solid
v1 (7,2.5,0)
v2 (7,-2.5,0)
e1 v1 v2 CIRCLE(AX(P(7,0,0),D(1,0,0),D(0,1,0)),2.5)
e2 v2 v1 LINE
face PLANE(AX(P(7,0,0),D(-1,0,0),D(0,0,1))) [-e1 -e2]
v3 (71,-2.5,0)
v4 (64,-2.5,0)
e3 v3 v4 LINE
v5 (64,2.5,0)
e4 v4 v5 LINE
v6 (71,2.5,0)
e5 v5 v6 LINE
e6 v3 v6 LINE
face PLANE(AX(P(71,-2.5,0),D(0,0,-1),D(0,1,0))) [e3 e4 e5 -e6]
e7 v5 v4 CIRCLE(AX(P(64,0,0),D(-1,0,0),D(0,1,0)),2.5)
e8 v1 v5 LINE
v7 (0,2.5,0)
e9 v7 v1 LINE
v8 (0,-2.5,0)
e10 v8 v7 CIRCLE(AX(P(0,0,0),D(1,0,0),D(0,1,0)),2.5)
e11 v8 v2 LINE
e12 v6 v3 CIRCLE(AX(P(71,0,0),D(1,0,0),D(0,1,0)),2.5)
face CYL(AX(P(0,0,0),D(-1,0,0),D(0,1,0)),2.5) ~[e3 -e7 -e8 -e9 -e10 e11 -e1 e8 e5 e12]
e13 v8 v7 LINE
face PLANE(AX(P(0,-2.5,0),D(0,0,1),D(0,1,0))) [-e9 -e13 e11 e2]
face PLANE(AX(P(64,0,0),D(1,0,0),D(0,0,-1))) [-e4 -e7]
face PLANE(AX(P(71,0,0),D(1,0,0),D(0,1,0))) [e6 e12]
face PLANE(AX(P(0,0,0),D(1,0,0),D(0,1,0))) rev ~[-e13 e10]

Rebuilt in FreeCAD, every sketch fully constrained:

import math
import FreeCAD as App
import Part
import Sketcher

V = App.Vector
Q = App.Units.Quantity

doc = App.newDocument("Part")
body = doc.addObject("PartDesign::Body", "Body")

# Sketch on YZ plane
sketch1 = body.newObject("Sketcher::SketchObject", "Sketch")
sketch1.AttachmentSupport = (doc.getObject("YZ_Plane"), [""])
sketch1.MapMode = "FlatFace"
sketch1.addGeometry(Part.Circle(V(0, 0, 0), V(0, 0, 1), 2.5), False)
sketch1.addConstraint(Sketcher.Constraint("Coincident", 0, 3, -1, 1))
sketch1.addConstraint(Sketcher.Constraint("Diameter", 0, Q("5 mm")))
pad1 = body.newObject("PartDesign::Pad", "Pad")
pad1.Profile = sketch1
pad1.Length = 71

# Sketch on YZ plane
sketch2 = body.newObject("Sketcher::SketchObject", "Sketch001")
sketch2.AttachmentSupport = (doc.getObject("YZ_Plane"), [""])
sketch2.MapMode = "FlatFace"
sketch2.AttachmentOffset = App.Placement(V(0, 0, 71), App.Rotation())
sketch2.addGeometry(Part.ArcOfCircle(Part.Circle(V(0, 0, 0), V(0, 0, 1), 2.5), math.radians(180), math.radians(360)), False)
sketch2.addGeometry(Part.LineSegment(V(2.5, 0, 0), V(-2.5, 0, 0)), False)
sketch2.addConstraint(Sketcher.Constraint("Coincident", 0, 1, 1, 2))
sketch2.addConstraint(Sketcher.Constraint("Coincident", 1, 1, 0, 2))
sketch2.addConstraint(Sketcher.Constraint("Horizontal", 1))
sketch2.addConstraint(Sketcher.Constraint("Coincident", 0, 3, -1, 1))
sketch2.addConstraint(Sketcher.Constraint("PointOnObject", 0, 1, -1))
sketch2.addConstraint(Sketcher.Constraint("Radius", 0, Q("2.5 mm")))
pocket1 = body.newObject("PartDesign::Pocket", "Pocket")
pocket1.Profile = sketch2
pocket1.Length = 7

# Sketch on YZ plane
sketch3 = body.newObject("Sketcher::SketchObject", "Sketch002")
sketch3.AttachmentSupport = (doc.getObject("YZ_Plane"), [""])
sketch3.MapMode = "FlatFace"
sketch3.addGeometry(Part.ArcOfCircle(Part.Circle(V(0, 0, 0), V(0, 0, 1), 2.5), math.radians(0), math.radians(180)), False)
sketch3.addGeometry(Part.LineSegment(V(2.5, 0, 0), V(-2.5, 0, 0)), False)
sketch3.addConstraint(Sketcher.Constraint("Coincident", 0, 1, 1, 1))
sketch3.addConstraint(Sketcher.Constraint("Coincident", 1, 2, 0, 2))
sketch3.addConstraint(Sketcher.Constraint("Horizontal", 1))
sketch3.addConstraint(Sketcher.Constraint("Coincident", 0, 3, -1, 1))
sketch3.addConstraint(Sketcher.Constraint("PointOnObject", 0, 1, -1))
sketch3.addConstraint(Sketcher.Constraint("Radius", 0, Q("2.5 mm")))
pocket2 = body.newObject("PartDesign::Pocket", "Pocket001")
pocket2.Profile = sketch3
pocket2.Length = 7
pocket2.Reversed = True

doc.recompute()
